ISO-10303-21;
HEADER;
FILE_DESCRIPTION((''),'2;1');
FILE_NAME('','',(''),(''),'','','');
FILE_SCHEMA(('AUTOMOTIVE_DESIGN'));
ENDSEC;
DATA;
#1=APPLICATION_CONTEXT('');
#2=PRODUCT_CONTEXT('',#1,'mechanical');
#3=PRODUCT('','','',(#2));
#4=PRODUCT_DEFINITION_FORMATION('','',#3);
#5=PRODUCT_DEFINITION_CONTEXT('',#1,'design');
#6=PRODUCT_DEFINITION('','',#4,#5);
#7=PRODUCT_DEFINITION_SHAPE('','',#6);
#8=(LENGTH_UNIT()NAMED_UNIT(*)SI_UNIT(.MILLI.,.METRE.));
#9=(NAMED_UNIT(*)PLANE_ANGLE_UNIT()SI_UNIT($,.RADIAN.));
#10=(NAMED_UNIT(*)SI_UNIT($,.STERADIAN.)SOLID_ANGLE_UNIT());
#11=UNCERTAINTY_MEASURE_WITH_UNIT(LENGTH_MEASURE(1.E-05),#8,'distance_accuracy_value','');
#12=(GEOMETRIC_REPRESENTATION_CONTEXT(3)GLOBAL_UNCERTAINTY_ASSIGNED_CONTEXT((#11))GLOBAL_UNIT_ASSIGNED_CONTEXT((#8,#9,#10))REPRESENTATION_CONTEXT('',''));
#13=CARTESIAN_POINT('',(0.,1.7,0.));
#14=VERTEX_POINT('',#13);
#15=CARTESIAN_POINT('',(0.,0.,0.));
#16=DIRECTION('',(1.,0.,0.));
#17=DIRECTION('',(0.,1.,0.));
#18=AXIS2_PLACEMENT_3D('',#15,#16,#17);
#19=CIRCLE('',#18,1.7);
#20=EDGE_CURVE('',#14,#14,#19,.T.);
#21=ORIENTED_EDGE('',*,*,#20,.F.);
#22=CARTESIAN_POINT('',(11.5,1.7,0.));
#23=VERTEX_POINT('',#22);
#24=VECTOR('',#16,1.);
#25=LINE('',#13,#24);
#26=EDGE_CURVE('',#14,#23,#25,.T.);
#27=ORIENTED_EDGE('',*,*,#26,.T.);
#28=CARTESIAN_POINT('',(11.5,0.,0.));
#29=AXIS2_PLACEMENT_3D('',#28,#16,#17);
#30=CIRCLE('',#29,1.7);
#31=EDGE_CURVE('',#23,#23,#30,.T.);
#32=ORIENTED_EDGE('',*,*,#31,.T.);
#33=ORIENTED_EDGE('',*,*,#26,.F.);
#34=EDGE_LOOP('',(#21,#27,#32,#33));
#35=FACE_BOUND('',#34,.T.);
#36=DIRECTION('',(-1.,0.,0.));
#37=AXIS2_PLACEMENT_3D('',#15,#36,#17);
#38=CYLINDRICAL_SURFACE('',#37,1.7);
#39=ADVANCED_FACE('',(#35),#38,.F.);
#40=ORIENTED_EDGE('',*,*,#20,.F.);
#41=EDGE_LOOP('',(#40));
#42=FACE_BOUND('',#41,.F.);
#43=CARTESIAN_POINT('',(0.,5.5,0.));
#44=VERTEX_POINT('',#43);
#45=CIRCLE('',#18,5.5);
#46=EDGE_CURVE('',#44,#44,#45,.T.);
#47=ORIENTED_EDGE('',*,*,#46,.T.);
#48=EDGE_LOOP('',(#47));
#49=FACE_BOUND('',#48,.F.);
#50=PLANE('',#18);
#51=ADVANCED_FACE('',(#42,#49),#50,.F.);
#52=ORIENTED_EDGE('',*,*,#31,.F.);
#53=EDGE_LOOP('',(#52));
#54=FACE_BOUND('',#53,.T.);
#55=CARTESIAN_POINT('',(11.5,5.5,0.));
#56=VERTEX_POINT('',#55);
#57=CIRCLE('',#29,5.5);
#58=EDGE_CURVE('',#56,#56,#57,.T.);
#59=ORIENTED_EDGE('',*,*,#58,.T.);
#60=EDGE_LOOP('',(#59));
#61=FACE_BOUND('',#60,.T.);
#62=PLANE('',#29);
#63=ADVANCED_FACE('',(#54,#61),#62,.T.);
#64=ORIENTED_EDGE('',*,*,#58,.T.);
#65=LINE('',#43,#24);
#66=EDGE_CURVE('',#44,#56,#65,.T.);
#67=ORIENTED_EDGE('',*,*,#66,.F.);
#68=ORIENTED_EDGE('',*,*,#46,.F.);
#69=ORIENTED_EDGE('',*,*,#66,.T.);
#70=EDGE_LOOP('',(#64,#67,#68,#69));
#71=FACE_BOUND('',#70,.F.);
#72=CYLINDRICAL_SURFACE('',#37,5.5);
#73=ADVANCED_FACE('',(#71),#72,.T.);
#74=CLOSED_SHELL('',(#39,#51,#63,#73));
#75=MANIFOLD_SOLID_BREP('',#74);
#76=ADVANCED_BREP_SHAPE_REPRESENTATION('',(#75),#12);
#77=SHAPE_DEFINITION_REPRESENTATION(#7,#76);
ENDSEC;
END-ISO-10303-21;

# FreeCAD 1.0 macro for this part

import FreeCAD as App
import Part
import Sketcher
from FreeCAD import Vector

doc = App.newDocument("Part")
params = doc.addObject("Spreadsheet::Sheet", "Params")
for row, (alias, value) in enumerate([
    ("sketch1_diameter", "11 mm"),
    ("sketch1_diameter2", "3.4 mm"),
    ("pad1_length", "11.5 mm"),
], start=1):
    params.set(f"A{row}", alias)
    params.set(f"B{row}", "=" + value)
    params.setAlias(f"B{row}", alias)

body = doc.addObject("PartDesign::Body", "Body")

# Sketch on YZ plane
sketch1 = body.newObject("Sketcher::SketchObject", "Sketch")
sketch1.AttachmentSupport = (doc.getObject("YZ_Plane"), [""])
sketch1.MapMode = "FlatFace"
sketch1.addGeometry([
    Part.Circle(Vector(0, 0, 0), Vector(0, 0, 1), 5.5),
    Part.Circle(Vector(0, 0, 0), Vector(0, 0, 1), 1.7),
], False)
sketch1.addConstraint([
    Sketcher.Constraint("Coincident", 0, 3, -1, 1),
    Sketcher.Constraint("Coincident", 1, 3, -1, 1),
    Sketcher.Constraint("Diameter", 0, 11.0),
    Sketcher.Constraint("Diameter", 1, 3.4),
])
sketch1.setExpression("Constraints[2]", "Params.sketch1_diameter")
sketch1.setExpression("Constraints[3]", "Params.sketch1_diameter2")
pad1 = body.newObject("PartDesign::Pad", "Pad")
pad1.Profile = sketch1
pad1.setExpression("Length", "Params.pad1_length")

doc.recompute()
